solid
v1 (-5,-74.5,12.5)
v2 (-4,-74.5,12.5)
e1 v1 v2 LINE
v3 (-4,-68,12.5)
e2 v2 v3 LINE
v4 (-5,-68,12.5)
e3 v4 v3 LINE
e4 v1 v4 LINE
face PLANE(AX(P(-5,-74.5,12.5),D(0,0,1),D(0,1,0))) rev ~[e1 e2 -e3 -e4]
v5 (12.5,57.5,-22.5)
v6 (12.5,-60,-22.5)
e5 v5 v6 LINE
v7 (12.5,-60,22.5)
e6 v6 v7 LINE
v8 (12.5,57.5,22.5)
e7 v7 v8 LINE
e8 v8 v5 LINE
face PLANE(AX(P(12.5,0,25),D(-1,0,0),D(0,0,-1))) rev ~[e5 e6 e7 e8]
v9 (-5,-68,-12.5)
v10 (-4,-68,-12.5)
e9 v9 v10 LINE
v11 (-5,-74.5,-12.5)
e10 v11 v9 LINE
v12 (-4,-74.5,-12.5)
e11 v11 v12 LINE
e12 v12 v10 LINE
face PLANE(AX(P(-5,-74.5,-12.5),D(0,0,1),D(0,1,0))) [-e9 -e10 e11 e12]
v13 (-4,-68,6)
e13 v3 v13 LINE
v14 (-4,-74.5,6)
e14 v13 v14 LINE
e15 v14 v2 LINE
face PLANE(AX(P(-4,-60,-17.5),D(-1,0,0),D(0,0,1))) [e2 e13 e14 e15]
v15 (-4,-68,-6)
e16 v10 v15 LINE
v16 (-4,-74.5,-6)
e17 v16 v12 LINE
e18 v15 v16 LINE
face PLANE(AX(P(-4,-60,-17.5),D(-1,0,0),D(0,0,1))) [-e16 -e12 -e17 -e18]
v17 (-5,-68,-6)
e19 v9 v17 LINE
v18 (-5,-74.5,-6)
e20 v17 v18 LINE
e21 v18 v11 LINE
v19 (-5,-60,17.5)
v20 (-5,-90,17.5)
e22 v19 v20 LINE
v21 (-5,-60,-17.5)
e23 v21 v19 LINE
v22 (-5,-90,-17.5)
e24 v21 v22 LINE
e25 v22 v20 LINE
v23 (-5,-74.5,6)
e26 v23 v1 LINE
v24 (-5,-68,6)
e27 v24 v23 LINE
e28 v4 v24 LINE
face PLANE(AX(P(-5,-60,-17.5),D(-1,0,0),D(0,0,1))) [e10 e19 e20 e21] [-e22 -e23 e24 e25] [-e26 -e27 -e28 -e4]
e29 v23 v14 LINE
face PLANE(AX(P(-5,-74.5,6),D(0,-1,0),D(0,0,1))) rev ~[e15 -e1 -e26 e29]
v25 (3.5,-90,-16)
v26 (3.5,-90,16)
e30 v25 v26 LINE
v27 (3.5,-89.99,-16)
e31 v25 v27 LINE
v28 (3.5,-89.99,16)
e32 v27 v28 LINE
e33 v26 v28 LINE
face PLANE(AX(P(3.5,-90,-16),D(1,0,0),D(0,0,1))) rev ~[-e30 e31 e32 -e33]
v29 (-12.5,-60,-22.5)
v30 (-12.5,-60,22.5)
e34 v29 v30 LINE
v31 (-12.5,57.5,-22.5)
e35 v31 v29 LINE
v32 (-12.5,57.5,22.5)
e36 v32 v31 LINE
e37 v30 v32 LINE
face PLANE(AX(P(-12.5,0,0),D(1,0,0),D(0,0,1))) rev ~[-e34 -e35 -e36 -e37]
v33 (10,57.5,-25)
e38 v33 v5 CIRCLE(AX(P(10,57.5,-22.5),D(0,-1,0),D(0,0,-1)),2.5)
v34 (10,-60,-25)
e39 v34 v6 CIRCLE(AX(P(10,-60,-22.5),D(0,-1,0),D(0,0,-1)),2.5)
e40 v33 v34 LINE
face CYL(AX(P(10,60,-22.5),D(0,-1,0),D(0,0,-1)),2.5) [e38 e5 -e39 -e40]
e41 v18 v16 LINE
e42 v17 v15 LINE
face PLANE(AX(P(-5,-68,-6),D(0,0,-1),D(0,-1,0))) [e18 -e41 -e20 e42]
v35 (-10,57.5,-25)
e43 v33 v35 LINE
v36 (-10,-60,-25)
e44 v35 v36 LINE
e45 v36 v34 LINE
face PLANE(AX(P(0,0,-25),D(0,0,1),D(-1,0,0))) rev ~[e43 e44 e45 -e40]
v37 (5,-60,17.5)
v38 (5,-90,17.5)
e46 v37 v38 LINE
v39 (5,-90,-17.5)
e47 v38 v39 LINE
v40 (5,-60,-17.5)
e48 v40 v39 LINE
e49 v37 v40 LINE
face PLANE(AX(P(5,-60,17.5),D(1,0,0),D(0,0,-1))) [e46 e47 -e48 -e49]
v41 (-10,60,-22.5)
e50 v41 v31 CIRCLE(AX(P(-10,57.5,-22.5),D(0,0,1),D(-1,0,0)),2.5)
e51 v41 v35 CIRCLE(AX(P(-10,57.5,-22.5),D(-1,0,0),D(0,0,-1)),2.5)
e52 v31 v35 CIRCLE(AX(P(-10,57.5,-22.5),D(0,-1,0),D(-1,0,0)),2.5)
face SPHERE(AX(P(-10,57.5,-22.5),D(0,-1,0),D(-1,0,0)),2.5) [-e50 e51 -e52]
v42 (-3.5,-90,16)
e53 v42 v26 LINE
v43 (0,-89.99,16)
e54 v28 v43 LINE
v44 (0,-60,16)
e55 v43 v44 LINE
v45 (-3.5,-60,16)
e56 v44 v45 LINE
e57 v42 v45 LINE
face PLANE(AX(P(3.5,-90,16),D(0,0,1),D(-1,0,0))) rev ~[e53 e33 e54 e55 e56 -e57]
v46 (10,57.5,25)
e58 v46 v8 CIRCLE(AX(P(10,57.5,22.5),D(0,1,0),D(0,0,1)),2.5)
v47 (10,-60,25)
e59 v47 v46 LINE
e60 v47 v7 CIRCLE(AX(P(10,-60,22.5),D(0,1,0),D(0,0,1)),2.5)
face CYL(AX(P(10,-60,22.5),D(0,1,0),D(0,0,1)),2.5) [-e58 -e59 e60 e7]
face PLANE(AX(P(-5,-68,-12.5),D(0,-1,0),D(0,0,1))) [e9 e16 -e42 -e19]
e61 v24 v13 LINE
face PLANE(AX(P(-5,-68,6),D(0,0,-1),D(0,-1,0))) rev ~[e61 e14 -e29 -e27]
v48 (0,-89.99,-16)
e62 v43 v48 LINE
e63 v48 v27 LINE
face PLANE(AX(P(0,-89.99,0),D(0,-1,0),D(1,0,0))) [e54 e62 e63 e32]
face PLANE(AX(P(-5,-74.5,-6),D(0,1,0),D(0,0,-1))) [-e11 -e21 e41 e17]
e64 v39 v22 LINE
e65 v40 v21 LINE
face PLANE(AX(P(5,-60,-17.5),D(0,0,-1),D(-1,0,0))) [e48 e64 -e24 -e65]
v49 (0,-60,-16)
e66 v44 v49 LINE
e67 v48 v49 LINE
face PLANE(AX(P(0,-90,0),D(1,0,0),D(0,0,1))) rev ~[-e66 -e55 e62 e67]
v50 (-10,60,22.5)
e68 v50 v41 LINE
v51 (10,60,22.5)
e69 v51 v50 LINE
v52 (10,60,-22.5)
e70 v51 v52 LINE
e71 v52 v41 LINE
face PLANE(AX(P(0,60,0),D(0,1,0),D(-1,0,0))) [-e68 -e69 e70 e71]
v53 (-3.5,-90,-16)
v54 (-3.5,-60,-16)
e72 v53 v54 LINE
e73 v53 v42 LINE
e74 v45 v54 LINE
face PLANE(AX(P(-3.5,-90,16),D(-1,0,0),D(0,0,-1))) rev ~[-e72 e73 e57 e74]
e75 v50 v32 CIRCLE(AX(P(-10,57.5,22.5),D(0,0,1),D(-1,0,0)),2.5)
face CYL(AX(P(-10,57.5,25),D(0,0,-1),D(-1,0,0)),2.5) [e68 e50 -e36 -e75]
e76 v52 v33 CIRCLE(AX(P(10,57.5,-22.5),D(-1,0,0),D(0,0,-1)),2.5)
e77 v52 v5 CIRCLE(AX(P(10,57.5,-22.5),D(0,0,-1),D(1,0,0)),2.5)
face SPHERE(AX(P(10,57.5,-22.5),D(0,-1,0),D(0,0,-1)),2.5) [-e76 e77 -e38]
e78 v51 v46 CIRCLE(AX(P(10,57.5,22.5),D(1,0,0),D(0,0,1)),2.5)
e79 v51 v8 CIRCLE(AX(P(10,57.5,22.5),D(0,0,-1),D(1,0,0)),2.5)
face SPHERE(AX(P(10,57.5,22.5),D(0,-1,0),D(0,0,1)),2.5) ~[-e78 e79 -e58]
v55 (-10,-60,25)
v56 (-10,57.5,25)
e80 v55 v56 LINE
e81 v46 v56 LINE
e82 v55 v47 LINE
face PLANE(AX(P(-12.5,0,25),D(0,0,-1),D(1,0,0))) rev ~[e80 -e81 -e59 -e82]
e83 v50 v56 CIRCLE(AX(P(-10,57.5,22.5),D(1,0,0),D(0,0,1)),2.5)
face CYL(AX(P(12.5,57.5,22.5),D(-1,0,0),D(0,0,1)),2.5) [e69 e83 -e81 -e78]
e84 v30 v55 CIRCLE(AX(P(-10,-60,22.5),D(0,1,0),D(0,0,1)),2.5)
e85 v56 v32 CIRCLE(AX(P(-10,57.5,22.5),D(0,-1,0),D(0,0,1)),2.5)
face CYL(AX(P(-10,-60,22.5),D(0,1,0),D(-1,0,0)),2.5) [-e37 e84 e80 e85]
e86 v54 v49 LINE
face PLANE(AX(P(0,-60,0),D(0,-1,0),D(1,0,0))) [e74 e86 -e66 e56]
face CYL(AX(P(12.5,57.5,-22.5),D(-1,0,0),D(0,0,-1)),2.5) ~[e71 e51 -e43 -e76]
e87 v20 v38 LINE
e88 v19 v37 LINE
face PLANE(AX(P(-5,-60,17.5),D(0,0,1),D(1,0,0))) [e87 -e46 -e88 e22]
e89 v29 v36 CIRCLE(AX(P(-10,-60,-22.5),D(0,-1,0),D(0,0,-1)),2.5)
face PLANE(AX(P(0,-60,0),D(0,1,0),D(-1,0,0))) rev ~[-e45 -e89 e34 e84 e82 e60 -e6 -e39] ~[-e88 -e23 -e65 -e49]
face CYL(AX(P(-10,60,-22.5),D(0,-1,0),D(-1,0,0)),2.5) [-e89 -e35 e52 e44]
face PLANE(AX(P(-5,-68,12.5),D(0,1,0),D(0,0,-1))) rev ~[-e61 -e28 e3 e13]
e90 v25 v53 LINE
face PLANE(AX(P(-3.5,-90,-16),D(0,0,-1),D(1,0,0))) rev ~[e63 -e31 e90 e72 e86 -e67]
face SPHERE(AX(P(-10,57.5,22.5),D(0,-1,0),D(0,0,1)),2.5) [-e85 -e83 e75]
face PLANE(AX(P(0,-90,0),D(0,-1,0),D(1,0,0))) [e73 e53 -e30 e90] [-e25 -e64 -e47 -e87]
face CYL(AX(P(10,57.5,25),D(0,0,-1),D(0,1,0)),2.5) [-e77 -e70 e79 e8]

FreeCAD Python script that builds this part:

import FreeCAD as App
import Part
import Sketcher


def edges_at(feature, points):
    """Names of the edges that pass closest to the given points."""
    edges = feature.Shape.Edges
    near = lambda p: min(range(len(edges)), key=lambda i: edges[i].distToShape(Part.Vertex(*p))[0])
    return sorted({f"Edge{near(p) + 1}" for p in points})

doc = App.newDocument("Part")
body = doc.addObject("PartDesign::Body", "Body")

# Sketch on XZ plane
sketch1 = body.newObject("Sketcher::SketchObject", "Sketch")
sketch1.AttachmentSupport = (doc.getObject("XZ_Plane"), [""])
sketch1.MapMode = "FlatFace"
sketch1.addGeometry([
    Part.LineSegment(App.Vector(-12, 25, 0), App.Vector(12, 25, 0)),
    Part.LineSegment(App.Vector(12, 25, 0), App.Vector(12, -25, 0)),
    Part.LineSegment(App.Vector(12, -25, 0), App.Vector(-12, -25, 0)),
    Part.LineSegment(App.Vector(-12, -25, 0), App.Vector(-12, 25, 0)),
], False)
sketch1.addConstraint([
    Sketcher.Constraint("Coincident", 0, 2, 1, 1),
    Sketcher.Constraint("Coincident", 1, 2, 2, 1),
    Sketcher.Constraint("Coincident", 2, 2, 3, 1),
    Sketcher.Constraint("Coincident", 3, 2, 0, 1),
    Sketcher.Constraint("Horizontal", 0),
    Sketcher.Constraint("Vertical", 1),
    Sketcher.Constraint("Horizontal", 2),
    Sketcher.Constraint("Vertical", 3),
    Sketcher.Constraint("Symmetric", 0, 2, 2, 2, -1, 1),
    Sketcher.Constraint("DistanceX", 0, 1, 0, 2, 25.0),
    Sketcher.Constraint("DistanceY", 1, 2, 1, 1, 50.0),
])
pad1 = body.newObject("PartDesign::Pad", "Pad")
pad1.Profile = sketch1
pad1.Length = 120
pad1.Midplane = True

# Sketch on XZ plane
sketch2 = body.newObject("Sketcher::SketchObject", "Sketch001")
sketch2.AttachmentSupport = (doc.getObject("XZ_Plane"), [""])
sketch2.MapMode = "FlatFace"
sketch2.AttachmentOffset = App.Placement(App.Vector(0, 0, 60), App.Rotation())
sketch2.addGeometry([
    Part.LineSegment(App.Vector(5, -18, 0), App.Vector(5, 18, 0)),
    Part.LineSegment(App.Vector(5, 18, 0), App.Vector(-5, 18, 0)),
    Part.LineSegment(App.Vector(-5, 18, 0), App.Vector(-5, -18, 0)),
    Part.LineSegment(App.Vector(-5, -18, 0), App.Vector(5, -18, 0)),
], False)
sketch2.addConstraint([
    Sketcher.Constraint("Coincident", 0, 2, 1, 1),
    Sketcher.Constraint("Coincident", 1, 2, 2, 1),
    Sketcher.Constraint("Coincident", 2, 2, 3, 1),
    Sketcher.Constraint("Coincident", 3, 2, 0, 1),
    Sketcher.Constraint("Vertical", 0),
    Sketcher.Constraint("Horizontal", 1),
    Sketcher.Constraint("Vertical", 2),
    Sketcher.Constraint("Horizontal", 3),
    Sketcher.Constraint("Symmetric", 0, 2, 2, 2, -1, 1),
    Sketcher.Constraint("DistanceX", 1, 2, 1, 1, 10.0),
    Sketcher.Constraint("DistanceY", 0, 1, 0, 2, 35.0),
])
pad2 = body.newObject("PartDesign::Pad", "Pad001")
pad2.Profile = sketch2
pad2.Length = 30

# Sketch on XZ plane
sketch3 = body.newObject("Sketcher::SketchObject", "Sketch002")
sketch3.AttachmentSupport = (doc.getObject("XZ_Plane"), [""])
sketch3.MapMode = "FlatFace"
sketch3.AttachmentOffset = App.Placement(App.Vector(0, 0, 90), App.Rotation())
sketch3.addGeometry([
    Part.LineSegment(App.Vector(-3.5, 16, 0), App.Vector(-3.5, -16, 0)),
    Part.LineSegment(App.Vector(-3.5, -16, 0), App.Vector(0, -16, 0)),
    Part.LineSegment(App.Vector(0, -16, 0), App.Vector(0, 16, 0)),
    Part.LineSegment(App.Vector(0, 16, 0), App.Vector(-3.5, 16, 0)),
], False)
sketch3.addConstraint([
    Sketcher.Constraint("Coincident", 0, 2, 1, 1),
    Sketcher.Constraint("Coincident", 1, 2, 2, 1),
    Sketcher.Constraint("Coincident", 2, 2, 3, 1),
    Sketcher.Constraint("Coincident", 3, 2, 0, 1),
    Sketcher.Constraint("Vertical", 0),
    Sketcher.Constraint("Horizontal", 1),
    Sketcher.Constraint("Vertical", 2),
    Sketcher.Constraint("Horizontal", 3),
    Sketcher.Constraint("Symmetric", 1, 2, 2, 2, -1, 1),
    Sketcher.Constraint("DistanceY", 0, 2, 0, 1, 32.0),
    Sketcher.Constraint("DistanceX", 1, 1, 1, 2, 3.5),
])
pocket1 = body.newObject("PartDesign::Pocket", "Pocket")
pocket1.Profile = sketch3
pocket1.Length = 30

# Sketch on YZ plane
sketch4 = body.newObject("Sketcher::SketchObject", "Sketch003")
sketch4.AttachmentSupport = (doc.getObject("YZ_Plane"), [""])
sketch4.MapMode = "FlatFace"
sketch4.AttachmentOffset = App.Placement(App.Vector(0, 0, -5), App.Rotation())
sketch4.addGeometry([
    Part.LineSegment(App.Vector(-68, -6, 0), App.Vector(-68, -12, 0)),  # 0
    Part.LineSegment(App.Vector(-68, -12, 0), App.Vector(-74, -12, 0)),  # 1
    Part.LineSegment(App.Vector(-74, -12, 0), App.Vector(-74, -6, 0)),  # 2
    Part.LineSegment(App.Vector(-74, -6, 0), App.Vector(-68, -6, 0)),  # 3
    Part.LineSegment(App.Vector(-74, 12, 0), App.Vector(-68, 12, 0)),  # 4
    Part.LineSegment(App.Vector(-68, 12, 0), App.Vector(-68, 6, 0)),  # 5
    Part.LineSegment(App.Vector(-68, 6, 0), App.Vector(-74, 6, 0)),  # 6
    Part.LineSegment(App.Vector(-74, 6, 0), App.Vector(-74, 12, 0)),  # 7
], False)
sketch4.addConstraint([
    Sketcher.Constraint("Coincident", 0, 2, 1, 1),
    Sketcher.Constraint("Coincident", 1, 2, 2, 1),
    Sketcher.Constraint("Coincident", 2, 2, 3, 1),
    Sketcher.Constraint("Coincident", 3, 2, 0, 1),
    Sketcher.Constraint("Coincident", 4, 2, 5, 1),
    Sketcher.Constraint("Coincident", 5, 2, 6, 1),
    Sketcher.Constraint("Coincident", 6, 2, 7, 1),
    Sketcher.Constraint("Coincident", 7, 2, 4, 1),
    Sketcher.Constraint("Vertical", 0),
    Sketcher.Constraint("Horizontal", 1),
    Sketcher.Constraint("Vertical", 2),
    Sketcher.Constraint("Horizontal", 3),
    Sketcher.Constraint("Horizontal", 4),
    Sketcher.Constraint("Vertical", 5),
    Sketcher.Constraint("Horizontal", 6),
    Sketcher.Constraint("Vertical", 7),
    Sketcher.Constraint("Symmetric", 0, 2, 4, 2, -1),
    Sketcher.Constraint("Symmetric", 2, 2, 6, 2, -1),
    Sketcher.Constraint("Equal", 6, 0),
    Sketcher.Constraint("DistanceX", 1, 2, 1, 1, 6.5),
    Sketcher.Constraint("DistanceY", 2, 2, -1, 1, 6.0),
    Sketcher.Constraint("DistanceX", 0, 2, -1, 1, 68.0),
])
pocket2 = body.newObject("PartDesign::Pocket", "Pocket001")
pocket2.Profile = sketch4
pocket2.Length = 1
pocket2.Reversed = True
doc.recompute()

fillet = body.newObject("PartDesign::Fillet", "Fillet")
fillet.Base = (pocket2, edges_at(pocket2, [
    (-12.5, 0, 25),
    (-12.5, 0, -25),
    (12.5, 0, 25),
    (12.5, 0, -25),
    (0, 60, 25),
    (-12.5, 60, 0),
    (0, 60, -25),
    (12.5, 60, 0),
]))
fillet.Radius = 2.5

# Sketch on XZ plane
sketch5 = body.newObject("Sketcher::SketchObject", "Sketch004")
sketch5.AttachmentSupport = (doc.getObject("XZ_Plane"), [""])
sketch5.MapMode = "FlatFace"
sketch5.AttachmentOffset = App.Placement(App.Vector(0, 0, 90), App.Rotation())
sketch5.addGeometry([
    Part.LineSegment(App.Vector(0, 16, 0), App.Vector(0, -16, 0)),
    Part.LineSegment(App.Vector(0, -16, 0), App.Vector(3.5, -16, 0)),
    Part.LineSegment(App.Vector(3.5, -16, 0), App.Vector(3.5, 16, 0)),
    Part.LineSegment(App.Vector(3.5, 16, 0), App.Vector(0, 16, 0)),
], False)
sketch5.addConstraint([
    Sketcher.Constraint("Coincident", 0, 2, 1, 1),
    Sketcher.Constraint("Coincident", 1, 2, 2, 1),
    Sketcher.Constraint("Coincident", 2, 2, 3, 1),
    Sketcher.Constraint("Coincident", 3, 2, 0, 1),
    Sketcher.Constraint("Vertical", 0),
    Sketcher.Constraint("Horizontal", 1),
    Sketcher.Constraint("Vertical", 2),
    Sketcher.Constraint("Horizontal", 3),
    Sketcher.Constraint("Symmetric", 0, 2, 3, 2, -1, 1),
    Sketcher.Constraint("DistanceY", 0, 2, 0, 1, 32.0),
    Sketcher.Constraint("DistanceX", 1, 1, 1, 2, 3.5),
])
pocket3 = body.newObject("PartDesign::Pocket", "Pocket002")
pocket3.Profile = sketch5
pocket3.Length = 0.01

doc.recompute()
